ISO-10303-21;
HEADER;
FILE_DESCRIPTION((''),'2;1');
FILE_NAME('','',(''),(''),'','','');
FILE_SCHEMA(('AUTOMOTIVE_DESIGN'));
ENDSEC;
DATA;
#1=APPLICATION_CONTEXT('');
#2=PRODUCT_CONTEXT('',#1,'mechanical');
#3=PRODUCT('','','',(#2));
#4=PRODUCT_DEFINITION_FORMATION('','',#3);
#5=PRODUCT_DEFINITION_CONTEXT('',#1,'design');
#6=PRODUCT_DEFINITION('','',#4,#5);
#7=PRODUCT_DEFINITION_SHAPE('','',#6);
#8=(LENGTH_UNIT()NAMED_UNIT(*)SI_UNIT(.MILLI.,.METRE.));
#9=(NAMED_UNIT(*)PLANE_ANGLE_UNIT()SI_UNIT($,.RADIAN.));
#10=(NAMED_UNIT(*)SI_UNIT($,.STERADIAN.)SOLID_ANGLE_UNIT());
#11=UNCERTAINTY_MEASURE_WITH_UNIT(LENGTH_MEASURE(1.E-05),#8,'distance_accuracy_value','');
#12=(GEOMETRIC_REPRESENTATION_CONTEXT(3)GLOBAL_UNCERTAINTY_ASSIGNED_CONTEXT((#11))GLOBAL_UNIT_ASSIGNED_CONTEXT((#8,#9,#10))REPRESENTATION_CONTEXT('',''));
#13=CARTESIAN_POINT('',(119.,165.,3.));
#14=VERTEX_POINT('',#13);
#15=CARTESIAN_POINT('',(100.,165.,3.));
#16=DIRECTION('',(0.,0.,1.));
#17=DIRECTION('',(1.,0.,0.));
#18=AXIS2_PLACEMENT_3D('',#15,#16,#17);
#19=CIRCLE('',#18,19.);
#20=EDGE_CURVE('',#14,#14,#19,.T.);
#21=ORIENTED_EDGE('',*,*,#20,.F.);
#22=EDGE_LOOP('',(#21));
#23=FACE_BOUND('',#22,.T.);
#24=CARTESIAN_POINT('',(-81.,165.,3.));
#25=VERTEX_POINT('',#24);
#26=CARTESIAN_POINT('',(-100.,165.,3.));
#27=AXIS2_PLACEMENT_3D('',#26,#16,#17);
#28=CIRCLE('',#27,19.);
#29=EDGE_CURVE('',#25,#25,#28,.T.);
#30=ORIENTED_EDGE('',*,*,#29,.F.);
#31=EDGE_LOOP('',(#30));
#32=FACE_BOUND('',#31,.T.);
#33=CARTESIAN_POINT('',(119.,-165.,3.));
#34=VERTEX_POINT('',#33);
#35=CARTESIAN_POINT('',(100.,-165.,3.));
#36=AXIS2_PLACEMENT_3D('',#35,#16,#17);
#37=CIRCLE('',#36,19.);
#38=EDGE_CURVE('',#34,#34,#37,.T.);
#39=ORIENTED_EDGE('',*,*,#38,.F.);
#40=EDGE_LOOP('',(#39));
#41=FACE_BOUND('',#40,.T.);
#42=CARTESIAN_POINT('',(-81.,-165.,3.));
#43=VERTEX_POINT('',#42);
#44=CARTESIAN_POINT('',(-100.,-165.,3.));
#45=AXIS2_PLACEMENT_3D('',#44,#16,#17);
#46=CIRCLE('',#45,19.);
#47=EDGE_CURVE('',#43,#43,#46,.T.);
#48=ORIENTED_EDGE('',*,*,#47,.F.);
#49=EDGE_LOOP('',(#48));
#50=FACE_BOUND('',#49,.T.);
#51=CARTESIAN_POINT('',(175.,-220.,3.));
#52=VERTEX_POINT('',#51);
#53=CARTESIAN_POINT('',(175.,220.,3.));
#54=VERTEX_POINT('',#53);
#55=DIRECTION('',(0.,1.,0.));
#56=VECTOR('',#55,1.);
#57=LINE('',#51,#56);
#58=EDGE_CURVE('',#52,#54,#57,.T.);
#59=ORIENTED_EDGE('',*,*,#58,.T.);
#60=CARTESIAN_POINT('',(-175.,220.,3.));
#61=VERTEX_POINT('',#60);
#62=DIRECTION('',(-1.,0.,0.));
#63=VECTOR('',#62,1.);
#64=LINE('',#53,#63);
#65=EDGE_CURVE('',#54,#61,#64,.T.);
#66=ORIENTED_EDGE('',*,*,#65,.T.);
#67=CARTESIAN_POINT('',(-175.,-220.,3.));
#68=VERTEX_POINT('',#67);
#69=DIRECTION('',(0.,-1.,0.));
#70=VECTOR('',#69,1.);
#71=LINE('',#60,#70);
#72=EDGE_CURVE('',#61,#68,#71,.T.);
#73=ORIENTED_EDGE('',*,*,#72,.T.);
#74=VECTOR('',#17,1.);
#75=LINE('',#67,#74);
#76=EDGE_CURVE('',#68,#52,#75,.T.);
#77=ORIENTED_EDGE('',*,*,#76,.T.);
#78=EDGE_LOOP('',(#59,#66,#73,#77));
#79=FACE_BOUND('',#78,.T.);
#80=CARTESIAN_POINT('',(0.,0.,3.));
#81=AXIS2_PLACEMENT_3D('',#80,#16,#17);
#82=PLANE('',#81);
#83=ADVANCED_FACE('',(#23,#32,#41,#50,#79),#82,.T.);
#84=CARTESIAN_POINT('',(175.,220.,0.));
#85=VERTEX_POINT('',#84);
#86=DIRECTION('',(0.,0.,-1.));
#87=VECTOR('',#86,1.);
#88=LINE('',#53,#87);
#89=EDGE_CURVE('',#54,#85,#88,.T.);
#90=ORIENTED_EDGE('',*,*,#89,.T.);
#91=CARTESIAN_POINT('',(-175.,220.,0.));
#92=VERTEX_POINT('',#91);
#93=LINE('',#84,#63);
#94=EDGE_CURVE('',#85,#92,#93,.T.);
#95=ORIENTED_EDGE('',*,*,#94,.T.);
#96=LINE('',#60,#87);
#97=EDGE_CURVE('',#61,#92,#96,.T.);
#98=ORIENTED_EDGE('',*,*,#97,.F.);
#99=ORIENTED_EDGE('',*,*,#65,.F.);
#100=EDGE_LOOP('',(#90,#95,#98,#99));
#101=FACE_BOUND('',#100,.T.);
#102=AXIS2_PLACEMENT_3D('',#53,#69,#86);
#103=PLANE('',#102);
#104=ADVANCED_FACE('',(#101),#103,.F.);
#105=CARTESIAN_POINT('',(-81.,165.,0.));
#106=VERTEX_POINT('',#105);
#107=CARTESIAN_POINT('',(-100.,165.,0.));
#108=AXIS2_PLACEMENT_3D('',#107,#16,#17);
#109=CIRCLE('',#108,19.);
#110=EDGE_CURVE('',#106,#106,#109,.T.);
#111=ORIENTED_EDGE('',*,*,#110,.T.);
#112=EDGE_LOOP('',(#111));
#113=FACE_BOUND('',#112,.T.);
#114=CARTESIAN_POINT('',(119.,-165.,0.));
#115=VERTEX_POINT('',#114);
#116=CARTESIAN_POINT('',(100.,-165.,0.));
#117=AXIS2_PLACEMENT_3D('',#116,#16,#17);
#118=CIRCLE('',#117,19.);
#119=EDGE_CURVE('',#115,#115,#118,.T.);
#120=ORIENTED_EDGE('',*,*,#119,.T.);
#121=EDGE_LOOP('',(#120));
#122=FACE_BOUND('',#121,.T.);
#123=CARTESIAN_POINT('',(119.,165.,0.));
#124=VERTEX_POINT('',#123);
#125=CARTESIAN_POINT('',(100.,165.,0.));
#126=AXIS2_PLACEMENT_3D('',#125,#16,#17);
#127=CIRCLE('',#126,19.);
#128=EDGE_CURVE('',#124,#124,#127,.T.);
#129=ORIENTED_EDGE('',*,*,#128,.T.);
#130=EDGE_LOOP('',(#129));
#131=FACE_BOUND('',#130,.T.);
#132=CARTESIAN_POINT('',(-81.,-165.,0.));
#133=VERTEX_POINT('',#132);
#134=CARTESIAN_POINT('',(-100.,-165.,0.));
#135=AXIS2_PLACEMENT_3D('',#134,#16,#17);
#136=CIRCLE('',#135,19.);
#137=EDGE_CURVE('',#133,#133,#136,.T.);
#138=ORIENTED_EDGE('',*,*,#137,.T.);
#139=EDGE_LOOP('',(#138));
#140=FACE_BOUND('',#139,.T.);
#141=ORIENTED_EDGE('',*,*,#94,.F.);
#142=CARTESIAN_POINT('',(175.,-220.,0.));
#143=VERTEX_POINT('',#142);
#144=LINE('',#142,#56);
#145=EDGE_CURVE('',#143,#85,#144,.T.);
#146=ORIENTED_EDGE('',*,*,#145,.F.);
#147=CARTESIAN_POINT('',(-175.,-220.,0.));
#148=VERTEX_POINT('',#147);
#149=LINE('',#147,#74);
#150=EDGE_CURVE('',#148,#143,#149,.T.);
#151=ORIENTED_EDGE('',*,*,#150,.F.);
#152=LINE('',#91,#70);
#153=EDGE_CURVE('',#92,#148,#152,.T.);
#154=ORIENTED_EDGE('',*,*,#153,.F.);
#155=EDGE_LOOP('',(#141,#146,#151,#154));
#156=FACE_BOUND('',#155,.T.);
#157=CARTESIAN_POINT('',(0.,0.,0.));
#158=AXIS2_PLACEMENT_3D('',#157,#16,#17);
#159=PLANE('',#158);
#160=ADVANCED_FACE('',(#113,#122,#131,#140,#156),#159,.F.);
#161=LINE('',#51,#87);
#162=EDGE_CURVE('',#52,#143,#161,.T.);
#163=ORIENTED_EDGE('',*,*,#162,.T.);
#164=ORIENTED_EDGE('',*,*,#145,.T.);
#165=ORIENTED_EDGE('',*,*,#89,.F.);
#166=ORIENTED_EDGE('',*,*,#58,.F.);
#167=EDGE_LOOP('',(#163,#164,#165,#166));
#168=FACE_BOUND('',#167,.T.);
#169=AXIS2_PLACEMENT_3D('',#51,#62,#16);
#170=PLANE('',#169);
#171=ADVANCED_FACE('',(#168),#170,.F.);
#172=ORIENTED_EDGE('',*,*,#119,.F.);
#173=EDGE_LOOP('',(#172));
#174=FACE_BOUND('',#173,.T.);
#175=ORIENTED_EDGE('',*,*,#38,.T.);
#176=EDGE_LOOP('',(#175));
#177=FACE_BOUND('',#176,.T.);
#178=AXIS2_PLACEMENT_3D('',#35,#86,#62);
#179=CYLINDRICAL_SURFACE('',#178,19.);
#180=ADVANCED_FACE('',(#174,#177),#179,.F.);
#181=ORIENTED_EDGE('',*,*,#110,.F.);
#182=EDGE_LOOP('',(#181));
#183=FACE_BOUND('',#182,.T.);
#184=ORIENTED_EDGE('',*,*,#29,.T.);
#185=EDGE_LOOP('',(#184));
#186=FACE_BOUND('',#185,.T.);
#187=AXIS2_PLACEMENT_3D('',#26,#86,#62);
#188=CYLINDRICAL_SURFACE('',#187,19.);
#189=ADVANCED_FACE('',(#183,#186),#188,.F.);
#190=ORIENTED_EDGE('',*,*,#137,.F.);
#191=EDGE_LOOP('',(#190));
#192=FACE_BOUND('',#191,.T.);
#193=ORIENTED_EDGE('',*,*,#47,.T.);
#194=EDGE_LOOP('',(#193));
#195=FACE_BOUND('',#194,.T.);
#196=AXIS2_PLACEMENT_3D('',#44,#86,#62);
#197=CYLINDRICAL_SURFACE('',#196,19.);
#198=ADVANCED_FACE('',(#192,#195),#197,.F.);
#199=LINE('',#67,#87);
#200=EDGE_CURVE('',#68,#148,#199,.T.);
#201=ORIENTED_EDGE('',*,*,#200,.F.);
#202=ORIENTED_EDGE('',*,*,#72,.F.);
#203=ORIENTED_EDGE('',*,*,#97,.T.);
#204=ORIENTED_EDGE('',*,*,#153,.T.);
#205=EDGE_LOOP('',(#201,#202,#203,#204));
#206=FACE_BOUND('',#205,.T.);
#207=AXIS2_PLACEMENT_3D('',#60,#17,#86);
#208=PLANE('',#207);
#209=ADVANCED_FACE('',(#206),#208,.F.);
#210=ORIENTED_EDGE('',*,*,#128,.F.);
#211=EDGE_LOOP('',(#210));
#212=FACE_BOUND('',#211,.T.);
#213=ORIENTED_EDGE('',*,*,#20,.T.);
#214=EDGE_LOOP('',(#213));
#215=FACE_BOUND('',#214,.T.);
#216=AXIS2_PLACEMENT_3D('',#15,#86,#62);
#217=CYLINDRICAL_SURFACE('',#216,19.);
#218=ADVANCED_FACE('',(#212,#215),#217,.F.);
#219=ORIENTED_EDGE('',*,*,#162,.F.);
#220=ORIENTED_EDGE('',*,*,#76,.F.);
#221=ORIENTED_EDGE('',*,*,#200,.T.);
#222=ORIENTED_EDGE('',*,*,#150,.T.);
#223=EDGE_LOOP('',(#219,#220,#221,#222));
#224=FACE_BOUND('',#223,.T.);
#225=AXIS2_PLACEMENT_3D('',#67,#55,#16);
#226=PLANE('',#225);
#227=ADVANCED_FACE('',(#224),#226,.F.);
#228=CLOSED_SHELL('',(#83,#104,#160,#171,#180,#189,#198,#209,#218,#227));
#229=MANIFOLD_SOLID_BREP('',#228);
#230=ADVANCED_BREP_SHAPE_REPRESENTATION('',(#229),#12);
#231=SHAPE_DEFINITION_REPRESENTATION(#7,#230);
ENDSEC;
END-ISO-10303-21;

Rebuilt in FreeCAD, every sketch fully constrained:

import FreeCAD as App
import Part
import Sketcher
from FreeCAD import Vector
Q = App.Units.Quantity


def add_polygon(sketch, points):
    """Adds a closed chain of lines whose ends are joined by coincident constraints."""
    first, n = sketch.GeometryCount, len(points)
    for a, b in zip(points, points[1:] + points[:1]):
        sketch.addGeometry(Part.LineSegment(App.Vector(*a, 0), App.Vector(*b, 0)), False)
    for i in range(n):
        sketch.addConstraint(Sketcher.Constraint("Coincident", first + i, 2, first + (i + 1) % n, 1))

doc = App.newDocument("Part")
body = doc.addObject("PartDesign::Body", "Body")

sketch1 = body.newObject("Sketcher::SketchObject", "Sketch")
sketch1.AttachmentSupport = (doc.getObject("XY_Plane"), [""])
sketch1.MapMode = "FlatFace"
add_polygon(sketch1, [(-175, 220), (-175, -220), (175, -220), (175, 220)])
sketch1.addGeometry(Part.Circle(Vector(-100, -165, 0), Vector(0, 0, 1), 19), False)
sketch1.addGeometry(Part.Circle(Vector(100, -165, 0), Vector(0, 0, 1), 19), False)
sketch1.addGeometry(Part.Circle(Vector(-100, 165, 0), Vector(0, 0, 1), 19), False)
sketch1.addGeometry(Part.Circle(Vector(100, 165, 0), Vector(0, 0, 1), 19), False)
sketch1.addConstraint([
    Sketcher.Constraint("Vertical", 0),
    Sketcher.Constraint("Horizontal", 1),
    Sketcher.Constraint("Vertical", 2),
    Sketcher.Constraint("Horizontal", 3),
    Sketcher.Constraint("Equal", 4, 5),
    Sketcher.Constraint("Equal", 5, 6),
    Sketcher.Constraint("Equal", 6, 7),
    Sketcher.Constraint("Symmetric", 5, 3, 6, 3, -1, 1),
    Sketcher.Constraint("Symmetric", 4, 3, 7, 3, -1, 1),
    Sketcher.Constraint("Symmetric", 0, 2, 2, 2, -1, 1),
    Sketcher.Constraint("Symmetric", 4, 3, 5, 3, -2),
    Sketcher.Constraint("Diameter", 4, Q("38 mm")),
    Sketcher.Constraint("DistanceX", 1, 1, 1, 2, Q("350 mm")),
    Sketcher.Constraint("DistanceY", 0, 2, 0, 1, Q("440 mm")),
    Sketcher.Constraint("DistanceX", 4, 3, -1, 1, Q("100 mm")),
    Sketcher.Constraint("DistanceY", 4, 3, -1, 1, Q("165 mm")),
])
pad1 = body.newObject("PartDesign::Pad", "Pad")
pad1.Profile = sketch1
pad1.Length = 3

doc.recompute()
